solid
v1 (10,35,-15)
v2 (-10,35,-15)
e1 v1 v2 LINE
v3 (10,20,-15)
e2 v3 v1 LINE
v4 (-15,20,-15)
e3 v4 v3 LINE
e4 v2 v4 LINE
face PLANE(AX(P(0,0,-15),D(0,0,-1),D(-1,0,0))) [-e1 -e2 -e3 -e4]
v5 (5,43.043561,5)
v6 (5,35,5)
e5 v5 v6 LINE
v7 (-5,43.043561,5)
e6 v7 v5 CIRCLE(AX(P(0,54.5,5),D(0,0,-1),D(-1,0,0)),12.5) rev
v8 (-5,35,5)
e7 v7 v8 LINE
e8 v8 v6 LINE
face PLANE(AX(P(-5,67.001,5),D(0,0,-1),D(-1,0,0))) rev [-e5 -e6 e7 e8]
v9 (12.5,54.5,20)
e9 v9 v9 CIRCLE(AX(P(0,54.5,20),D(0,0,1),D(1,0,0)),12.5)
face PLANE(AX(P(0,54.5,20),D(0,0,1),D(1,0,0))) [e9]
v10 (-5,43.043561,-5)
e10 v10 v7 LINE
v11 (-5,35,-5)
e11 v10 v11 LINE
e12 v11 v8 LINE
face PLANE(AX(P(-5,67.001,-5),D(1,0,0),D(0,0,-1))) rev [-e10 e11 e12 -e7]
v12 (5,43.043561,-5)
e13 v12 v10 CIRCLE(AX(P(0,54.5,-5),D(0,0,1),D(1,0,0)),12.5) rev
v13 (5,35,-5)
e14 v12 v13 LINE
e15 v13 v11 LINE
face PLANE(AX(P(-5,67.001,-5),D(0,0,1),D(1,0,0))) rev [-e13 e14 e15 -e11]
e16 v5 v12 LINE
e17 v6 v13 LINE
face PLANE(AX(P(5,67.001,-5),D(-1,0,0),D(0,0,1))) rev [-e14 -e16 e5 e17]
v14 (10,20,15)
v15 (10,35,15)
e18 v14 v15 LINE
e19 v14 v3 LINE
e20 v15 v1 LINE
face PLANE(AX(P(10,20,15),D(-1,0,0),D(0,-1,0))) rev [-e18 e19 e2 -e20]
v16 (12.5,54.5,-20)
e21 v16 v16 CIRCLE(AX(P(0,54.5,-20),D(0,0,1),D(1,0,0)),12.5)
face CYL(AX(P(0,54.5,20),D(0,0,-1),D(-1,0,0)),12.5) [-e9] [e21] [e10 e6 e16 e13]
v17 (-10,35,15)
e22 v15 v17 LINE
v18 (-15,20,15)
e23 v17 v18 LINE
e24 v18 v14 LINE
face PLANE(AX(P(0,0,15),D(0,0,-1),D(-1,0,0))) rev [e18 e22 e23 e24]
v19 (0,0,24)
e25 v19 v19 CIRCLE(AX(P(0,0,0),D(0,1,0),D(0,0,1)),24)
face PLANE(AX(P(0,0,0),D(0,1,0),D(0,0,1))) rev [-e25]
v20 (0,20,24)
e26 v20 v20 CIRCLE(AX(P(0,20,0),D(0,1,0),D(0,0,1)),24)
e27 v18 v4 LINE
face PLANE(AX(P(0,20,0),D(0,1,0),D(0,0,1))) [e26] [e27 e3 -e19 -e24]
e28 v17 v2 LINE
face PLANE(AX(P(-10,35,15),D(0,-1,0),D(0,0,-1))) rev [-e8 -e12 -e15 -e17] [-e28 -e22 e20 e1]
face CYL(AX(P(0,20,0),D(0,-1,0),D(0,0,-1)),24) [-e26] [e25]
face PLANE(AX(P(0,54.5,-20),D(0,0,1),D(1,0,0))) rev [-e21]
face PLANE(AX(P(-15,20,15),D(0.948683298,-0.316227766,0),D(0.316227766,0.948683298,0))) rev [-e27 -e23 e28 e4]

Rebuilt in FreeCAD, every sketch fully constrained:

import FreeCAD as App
import Part
import Sketcher

V = App.Vector
Q = App.Units.Quantity

doc = App.newDocument("Part")
body = doc.addObject("PartDesign::Body", "Body")

sketch1 = body.newObject("Sketcher::SketchObject", "Sketch")
sketch1.AttachmentSupport = (doc.getObject("XZ_Plane"), [""])
sketch1.MapMode = "FlatFace"
sketch1.addGeometry(Part.Circle(V(0, 0, 0), V(0, 0, 1), 24), False)
sketch1.addConstraint([
    Sketcher.Constraint("Coincident", 0, 3, -1, 1),
    Sketcher.Constraint("Diameter", 0, Q("48 mm")),
])
pad1 = body.newObject("PartDesign::Pad", "Pad")
pad1.Profile = sketch1
pad1.Length = 20
pad1.Reversed = True

sketch2 = body.newObject("Sketcher::SketchObject", "Sketch001")
sketch2.AttachmentSupport = (doc.getObject("XY_Plane"), [""])
sketch2.MapMode = "FlatFace"
sketch2.addGeometry([
    Part.LineSegment(V(-15, 20, 0), V(10, 20, 0)),
    Part.LineSegment(V(10, 20, 0), V(10, 35, 0)),
    Part.LineSegment(V(10, 35, 0), V(-10, 35, 0)),
    Part.LineSegment(V(-10, 35, 0), V(-15, 20, 0)),
], False)
sketch2.addConstraint([
    Sketcher.Constraint("Coincident", 0, 2, 1, 1),
    Sketcher.Constraint("Coincident", 1, 2, 2, 1),
    Sketcher.Constraint("Coincident", 2, 2, 3, 1),
    Sketcher.Constraint("Coincident", 3, 2, 0, 1),
    Sketcher.Constraint("Horizontal", 0),
    Sketcher.Constraint("Vertical", 1),
    Sketcher.Constraint("Horizontal", 2),
    Sketcher.Constraint("DistanceX", 0, 1, 0, 2, Q("25 mm")),
    Sketcher.Constraint("DistanceX", 2, 2, 2, 1, Q("20 mm")),
    Sketcher.Constraint("DistanceY", 1, 1, 1, 2, Q("15 mm")),
    Sketcher.Constraint("DistanceX", -1, 1, 0, 2, Q("10 mm")),
    Sketcher.Constraint("DistanceY", -1, 1, 0, 2, Q("20 mm")),
])
pad2 = body.newObject("PartDesign::Pad", "Pad001")
pad2.Profile = sketch2
pad2.Length = 30
pad2.Midplane = True
body2 = doc.addObject("PartDesign::Body", "Body001")

sketch3 = body2.newObject("Sketcher::SketchObject", "Sketch002")
sketch3.AttachmentSupport = (doc.getObject("XY_Plane001"), [""])
sketch3.MapMode = "FlatFace"
sketch3.addGeometry(Part.Circle(V(0, 54, 0), V(0, 0, 1), 12), False)
sketch3.addConstraint([
    Sketcher.Constraint("PointOnObject", 0, 3, -2),
    Sketcher.Constraint("Diameter", 0, Q("25 mm")),
    Sketcher.Constraint("DistanceY", -1, 1, 0, 3, Q("54.5 mm")),
])
pad3 = body2.newObject("PartDesign::Pad", "Pad002")
pad3.Profile = sketch3
pad3.Length = 40
pad3.Midplane = True
body.AllowCompound = True
doc.recompute()

boolean = body.newObject("PartDesign::Boolean", "Boolean")
boolean.Type = "Fuse"
boolean.addObjects([body2])

sketch4 = body.newObject("Sketcher::SketchObject", "Sketch003")
sketch4.AttachmentSupport = (doc.getObject("XZ_Plane"), [""])
sketch4.MapMode = "FlatFace"
sketch4.AttachmentOffset = App.Placement(V(0, 0, -35), App.Rotation())
sketch4.addGeometry([
    Part.LineSegment(V(-5, -5, 0), V(-5, 5, 0)),
    Part.LineSegment(V(-5, 5, 0), V(5, 5, 0)),
    Part.LineSegment(V(5, 5, 0), V(5, -5, 0)),
    Part.LineSegment(V(5, -5, 0), V(-5, -5, 0)),
], False)
sketch4.addConstraint([
    Sketcher.Constraint("Coincident", 0, 2, 1, 1),
    Sketcher.Constraint("Coincident", 1, 2, 2, 1),
    Sketcher.Constraint("Coincident", 2, 2, 3, 1),
    Sketcher.Constraint("Coincident", 3, 2, 0, 1),
    Sketcher.Constraint("Vertical", 0),
    Sketcher.Constraint("Horizontal", 1),
    Sketcher.Constraint("Vertical", 2),
    Sketcher.Constraint("Horizontal", 3),
    Sketcher.Constraint("Symmetric", 0, 2, 2, 2, -1, 1),
    Sketcher.Constraint("Equal", 3, 0),
    Sketcher.Constraint("DistanceX", 1, 1, 1, 2, Q("10 mm")),
])
pad4 = body.newObject("PartDesign::Pad", "Pad003")
pad4.Profile = sketch4
pad4.Length = 8.043561
pad4.Reversed = True

doc.recompute()
